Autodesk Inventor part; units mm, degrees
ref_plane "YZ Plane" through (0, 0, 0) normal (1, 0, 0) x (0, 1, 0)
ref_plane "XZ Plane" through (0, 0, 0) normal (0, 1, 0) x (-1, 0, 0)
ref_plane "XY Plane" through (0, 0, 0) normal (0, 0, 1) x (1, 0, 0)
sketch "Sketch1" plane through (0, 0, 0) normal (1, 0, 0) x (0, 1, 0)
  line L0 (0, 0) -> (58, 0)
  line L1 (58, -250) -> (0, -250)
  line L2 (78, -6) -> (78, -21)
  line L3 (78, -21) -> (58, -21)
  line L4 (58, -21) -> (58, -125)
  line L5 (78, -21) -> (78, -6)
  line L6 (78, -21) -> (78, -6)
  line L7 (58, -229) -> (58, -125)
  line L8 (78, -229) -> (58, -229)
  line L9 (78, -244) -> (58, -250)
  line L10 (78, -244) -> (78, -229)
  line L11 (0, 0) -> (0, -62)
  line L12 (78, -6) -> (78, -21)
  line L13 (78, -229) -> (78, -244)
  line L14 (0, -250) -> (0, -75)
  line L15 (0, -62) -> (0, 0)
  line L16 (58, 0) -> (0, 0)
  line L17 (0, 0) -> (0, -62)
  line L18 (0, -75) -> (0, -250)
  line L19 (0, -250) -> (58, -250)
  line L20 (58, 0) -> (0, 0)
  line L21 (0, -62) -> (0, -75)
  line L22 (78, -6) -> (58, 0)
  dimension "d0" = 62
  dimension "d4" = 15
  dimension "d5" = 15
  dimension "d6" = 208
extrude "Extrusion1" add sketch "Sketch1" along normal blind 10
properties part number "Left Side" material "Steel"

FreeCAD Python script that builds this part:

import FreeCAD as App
import Part
import Sketcher
Q = App.Units.Quantity

doc = App.newDocument("Part")
params = doc.addObject("Spreadsheet::Sheet", "Params")
for row, (alias, value) in enumerate([
    ("sketch1_height", "15 mm"),
    ("sketch1_height2", "208 mm"),
    ("sketch1_width", "58 mm"),
    ("sketch1_width2", "20 mm"),
    ("sketch1_height3", "250 mm"),
    ("pad1_length", "10 mm"),
], start=1):
    params.set(f"A{row}", alias)
    params.set(f"B{row}", "=" + value)
    params.setAlias(f"B{row}", alias)

body = doc.addObject("PartDesign::Body", "Body")

# Sketch on YZ plane
sketch1 = doc.addObject("Sketcher::SketchObject", "Sketch")
body.addObject(sketch1)
sketch1.AttachmentSupport = (doc.YZ_Plane, [""])
sketch1.MapMode = "FlatFace"
sketch1.addGeometry([
    Part.LineSegment(App.Vector(58, 0, 0), App.Vector(0, 0, 0)),  # 0
    Part.LineSegment(App.Vector(0, 0, 0), App.Vector(0, -250, 0)),  # 1
    Part.LineSegment(App.Vector(0, -250, 0), App.Vector(58, -250, 0)),  # 2
    Part.LineSegment(App.Vector(58, -250, 0), App.Vector(78, -244, 0)),  # 3
    Part.LineSegment(App.Vector(78, -244, 0), App.Vector(78, -229, 0)),  # 4
    Part.LineSegment(App.Vector(78, -229, 0), App.Vector(58, -229, 0)),  # 5
    Part.LineSegment(App.Vector(58, -229, 0), App.Vector(58, -21, 0)),  # 6
    Part.LineSegment(App.Vector(58, -21, 0), App.Vector(78, -21, 0)),  # 7
    Part.LineSegment(App.Vector(78, -21, 0), App.Vector(78, -6, 0)),  # 8
    Part.LineSegment(App.Vector(78, -6, 0), App.Vector(58, 0, 0)),  # 9
], False)
sketch1.addConstraint([
    Sketcher.Constraint("Coincident", 0, 2, 1, 1),
    Sketcher.Constraint("Coincident", 1, 2, 2, 1),
    Sketcher.Constraint("Coincident", 2, 2, 3, 1),
    Sketcher.Constraint("Coincident", 3, 2, 4, 1),
    Sketcher.Constraint("Coincident", 4, 2, 5, 1),
    Sketcher.Constraint("Coincident", 5, 2, 6, 1),
    Sketcher.Constraint("Coincident", 6, 2, 7, 1),
    Sketcher.Constraint("Coincident", 7, 2, 8, 1),
    Sketcher.Constraint("Coincident", 8, 2, 9, 1),
    Sketcher.Constraint("Coincident", 9, 2, 0, 1),
    Sketcher.Constraint("Horizontal", 0),
    Sketcher.Constraint("Vertical", 1),
    Sketcher.Constraint("Horizontal", 2),
    Sketcher.Constraint("Vertical", 4),
    Sketcher.Constraint("Horizontal", 5),
    Sketcher.Constraint("Vertical", 6),
    Sketcher.Constraint("Horizontal", 7),
    Sketcher.Constraint("Vertical", 8),
    Sketcher.Constraint("Coincident", 0, 2, -1, 1),
    Sketcher.Constraint("Vertical", 2, 2, 5, 2),
    Sketcher.Constraint("Vertical", 4, 2, 7, 2),
    Sketcher.Constraint("Vertical", 6, 2, 9, 2),
    Sketcher.Constraint("Equal", 4, 8),
    Sketcher.Constraint("Equal", 3, 9),
    Sketcher.Constraint("DistanceY", 4, 1, 4, 2, Q("15 mm")),
    Sketcher.Constraint("DistanceY", 6, 1, 6, 2, Q("208 mm")),
    Sketcher.Constraint("DistanceX", 0, 2, 0, 1, Q("58 mm")),
    Sketcher.Constraint("DistanceX", 5, 2, 5, 1, Q("20 mm")),
    Sketcher.Constraint("DistanceY", 1, 2, 1, 1, Q("250 mm")),
])
sketch1.setExpression("Constraints[24]", "Params.sketch1_height")
sketch1.setExpression("Constraints[25]", "Params.sketch1_height2")
sketch1.setExpression("Constraints[26]", "Params.sketch1_width")
sketch1.setExpression("Constraints[27]", "Params.sketch1_width2")
sketch1.setExpression("Constraints[28]", "Params.sketch1_height3")
pad1 = doc.addObject("PartDesign::Pad", "Pad")
body.addObject(pad1)
pad1.Profile = sketch1
pad1.setExpression("Length", "Params.pad1_length")

doc.recompute()
